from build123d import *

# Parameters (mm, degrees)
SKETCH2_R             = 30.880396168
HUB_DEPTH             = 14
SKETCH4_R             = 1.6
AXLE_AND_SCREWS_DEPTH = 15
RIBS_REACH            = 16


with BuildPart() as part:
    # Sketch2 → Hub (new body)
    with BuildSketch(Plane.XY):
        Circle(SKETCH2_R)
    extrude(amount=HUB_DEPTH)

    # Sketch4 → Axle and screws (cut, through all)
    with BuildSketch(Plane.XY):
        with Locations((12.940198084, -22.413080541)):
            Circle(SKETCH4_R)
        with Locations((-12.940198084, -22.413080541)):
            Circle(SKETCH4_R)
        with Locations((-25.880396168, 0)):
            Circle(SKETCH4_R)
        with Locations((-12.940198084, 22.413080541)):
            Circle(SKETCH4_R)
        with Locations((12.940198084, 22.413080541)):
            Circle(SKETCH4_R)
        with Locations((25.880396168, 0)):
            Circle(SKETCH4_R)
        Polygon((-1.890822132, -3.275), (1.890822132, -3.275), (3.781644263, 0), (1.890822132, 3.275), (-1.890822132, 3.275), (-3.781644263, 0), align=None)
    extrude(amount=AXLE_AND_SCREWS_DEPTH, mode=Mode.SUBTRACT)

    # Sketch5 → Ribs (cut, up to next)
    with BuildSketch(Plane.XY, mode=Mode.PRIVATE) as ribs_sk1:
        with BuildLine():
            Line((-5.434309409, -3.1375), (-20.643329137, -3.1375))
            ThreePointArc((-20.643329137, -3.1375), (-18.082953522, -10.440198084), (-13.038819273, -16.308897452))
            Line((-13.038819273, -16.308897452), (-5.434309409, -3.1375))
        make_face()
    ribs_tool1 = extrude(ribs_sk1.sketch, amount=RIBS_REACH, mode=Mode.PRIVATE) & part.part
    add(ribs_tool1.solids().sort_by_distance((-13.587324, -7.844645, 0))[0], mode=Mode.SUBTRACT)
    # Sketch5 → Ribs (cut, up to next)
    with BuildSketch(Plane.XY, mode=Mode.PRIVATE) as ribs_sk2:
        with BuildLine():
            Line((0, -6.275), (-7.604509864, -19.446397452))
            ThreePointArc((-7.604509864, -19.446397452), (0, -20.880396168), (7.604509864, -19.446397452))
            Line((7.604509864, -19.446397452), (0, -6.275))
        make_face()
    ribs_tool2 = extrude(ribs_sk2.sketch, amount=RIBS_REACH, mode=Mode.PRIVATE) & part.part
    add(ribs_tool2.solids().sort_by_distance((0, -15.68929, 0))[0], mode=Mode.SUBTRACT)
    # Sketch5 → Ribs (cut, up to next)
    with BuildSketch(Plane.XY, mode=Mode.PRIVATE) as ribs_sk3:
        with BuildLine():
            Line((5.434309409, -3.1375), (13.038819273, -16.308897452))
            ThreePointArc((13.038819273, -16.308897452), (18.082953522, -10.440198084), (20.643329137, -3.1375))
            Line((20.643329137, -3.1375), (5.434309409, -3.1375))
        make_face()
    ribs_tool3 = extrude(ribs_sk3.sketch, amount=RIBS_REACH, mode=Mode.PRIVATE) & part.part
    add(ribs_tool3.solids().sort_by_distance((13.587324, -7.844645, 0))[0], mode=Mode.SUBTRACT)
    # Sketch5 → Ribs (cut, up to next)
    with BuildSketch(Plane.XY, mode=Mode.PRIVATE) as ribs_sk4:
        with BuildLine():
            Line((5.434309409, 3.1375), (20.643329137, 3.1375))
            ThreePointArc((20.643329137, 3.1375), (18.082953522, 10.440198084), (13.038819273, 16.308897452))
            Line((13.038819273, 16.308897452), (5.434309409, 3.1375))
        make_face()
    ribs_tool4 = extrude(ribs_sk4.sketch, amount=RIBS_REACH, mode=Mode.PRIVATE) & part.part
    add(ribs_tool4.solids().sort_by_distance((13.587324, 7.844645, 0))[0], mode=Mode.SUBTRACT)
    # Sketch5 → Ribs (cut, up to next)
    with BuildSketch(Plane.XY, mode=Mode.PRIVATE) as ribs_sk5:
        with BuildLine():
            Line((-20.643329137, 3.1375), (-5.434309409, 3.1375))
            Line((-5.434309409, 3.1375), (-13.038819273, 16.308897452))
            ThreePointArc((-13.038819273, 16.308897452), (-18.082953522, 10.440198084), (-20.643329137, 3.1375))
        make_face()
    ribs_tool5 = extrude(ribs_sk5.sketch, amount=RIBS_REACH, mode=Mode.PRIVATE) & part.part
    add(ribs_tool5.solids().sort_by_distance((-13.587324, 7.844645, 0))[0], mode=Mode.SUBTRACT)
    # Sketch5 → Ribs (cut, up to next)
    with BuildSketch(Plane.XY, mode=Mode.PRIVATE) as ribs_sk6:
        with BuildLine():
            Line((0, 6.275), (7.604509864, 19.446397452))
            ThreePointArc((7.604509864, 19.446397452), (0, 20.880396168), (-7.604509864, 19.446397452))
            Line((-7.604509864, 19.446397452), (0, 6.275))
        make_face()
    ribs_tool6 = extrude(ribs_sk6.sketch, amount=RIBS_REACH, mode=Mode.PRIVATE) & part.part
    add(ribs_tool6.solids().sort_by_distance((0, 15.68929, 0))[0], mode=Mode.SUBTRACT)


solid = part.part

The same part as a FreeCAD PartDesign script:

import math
import FreeCAD as App
import Part
import Sketcher
Q = App.Units.Quantity

doc = App.newDocument("Part")
body = doc.addObject("PartDesign::Body", "Body")

sketch1 = body.newObject("Sketcher::SketchObject", "Sketch")
sketch1.AttachmentSupport = (doc.getObject("XY_Plane"), [""])
sketch1.MapMode = "FlatFace"
sketch1.addGeometry(Part.Circle(App.Vector(0, 0, 0), App.Vector(0, 0, 1), 30.880396), False)
sketch1.addConstraint(Sketcher.Constraint("Coincident", 0, 3, -1, 1))
sketch1.addConstraint(Sketcher.Constraint("Diameter", 0, Q("61.760792 mm")))
pad1 = body.newObject("PartDesign::Pad", "Pad")
pad1.Profile = sketch1
pad1.Length = 14

sketch2 = body.newObject("Sketcher::SketchObject", "Sketch001")
sketch2.AttachmentSupport = (doc.getObject("XY_Plane"), [""])
sketch2.MapMode = "FlatFace"
sketch2.addGeometry(Part.Circle(App.Vector(12.940198, -22.413081, 0), App.Vector(0, 0, 1), 1.6), False)
sketch2.addGeometry(Part.Circle(App.Vector(-12.940198, -22.413081, 0), App.Vector(0, 0, 1), 1.6), False)
sketch2.addGeometry(Part.Circle(App.Vector(-25.880396, 0, 0), App.Vector(0, 0, 1), 1.6), False)
sketch2.addGeometry(Part.Circle(App.Vector(-12.940198, 22.413081, 0), App.Vector(0, 0, 1), 1.6), False)
sketch2.addGeometry(Part.Circle(App.Vector(12.940198, 22.413081, 0), App.Vector(0, 0, 1), 1.6), False)
sketch2.addGeometry(Part.Circle(App.Vector(25.880396, 0, 0), App.Vector(0, 0, 1), 1.6), False)
sketch2.addGeometry(Part.LineSegment(App.Vector(-1.890822, -3.275, 0), App.Vector(1.890822, -3.275, 0)), False)
sketch2.addGeometry(Part.LineSegment(App.Vector(1.890822, -3.275, 0), App.Vector(3.781644, 0, 0)), False)
sketch2.addGeometry(Part.LineSegment(App.Vector(3.781644, 0, 0), App.Vector(1.890822, 3.275, 0)), False)
sketch2.addGeometry(Part.LineSegment(App.Vector(1.890822, 3.275, 0), App.Vector(-1.890822, 3.275, 0)), False)
sketch2.addGeometry(Part.LineSegment(App.Vector(-1.890822, 3.275, 0), App.Vector(-3.781644, 0, 0)), False)
sketch2.addGeometry(Part.LineSegment(App.Vector(-3.781644, 0, 0), App.Vector(-1.890822, -3.275, 0)), False)
sketch2.addConstraint(Sketcher.Constraint("Coincident", 6, 2, 7, 1))
sketch2.addConstraint(Sketcher.Constraint("Coincident", 7, 2, 8, 1))
sketch2.addConstraint(Sketcher.Constraint("Coincident", 8, 2, 9, 1))
sketch2.addConstraint(Sketcher.Constraint("Coincident", 9, 2, 10, 1))
sketch2.addConstraint(Sketcher.Constraint("Coincident", 10, 2, 11, 1))
sketch2.addConstraint(Sketcher.Constraint("Coincident", 11, 2, 6, 1))
sketch2.addConstraint(Sketcher.Constraint("Horizontal", 6))
sketch2.addConstraint(Sketcher.Constraint("Horizontal", 9))
sketch2.addConstraint(Sketcher.Constraint("Equal", 0, 1))
sketch2.addConstraint(Sketcher.Constraint("Equal", 1, 2))
sketch2.addConstraint(Sketcher.Constraint("Equal", 2, 3))
sketch2.addConstraint(Sketcher.Constraint("Equal", 3, 4))
sketch2.addConstraint(Sketcher.Constraint("Equal", 4, 5))
sketch2.addConstraint(Sketcher.Constraint("Symmetric", 0, 3, 3, 3, -1, 1))
sketch2.addConstraint(Sketcher.Constraint("Symmetric", 1, 3, 4, 3, -1, 1))
sketch2.addConstraint(Sketcher.Constraint("Symmetric", 2, 3, 5, 3, -1, 1))
sketch2.addConstraint(Sketcher.Constraint("Symmetric", 6, 2, 9, 2, -1, 1))
sketch2.addConstraint(Sketcher.Constraint("Symmetric", 7, 2, 10, 2, -1, 1))
sketch2.addConstraint(Sketcher.Constraint("Symmetric", 0, 3, 1, 3, -2))
sketch2.addConstraint(Sketcher.Constraint("PointOnObject", 2, 3, -1))
sketch2.addConstraint(Sketcher.Constraint("PointOnObject", 7, 2, -1))
sketch2.addConstraint(Sketcher.Constraint("Parallel", 8, 11))
sketch2.addConstraint(Sketcher.Constraint("Vertical", 6, 2, 8, 2))
sketch2.addConstraint(Sketcher.Constraint("Diameter", 0, Q("3.2 mm")))
sketch2.addConstraint(Sketcher.Constraint("Angle", 7, Q("60 deg")))
sketch2.addConstraint(Sketcher.Constraint("DistanceY", 6, 2, 8, 2, Q("6.55 mm")))
sketch2.addConstraint(Sketcher.Constraint("DistanceX", -1, 1, 0, 3, Q("12.940198 mm")))
sketch2.addConstraint(Sketcher.Constraint("DistanceX", 2, 3, 1, 3, Q("12.940198 mm")))
sketch2.addConstraint(Sketcher.Constraint("DistanceX", 6, 1, 6, 2, Q("3.781644 mm")))
sketch2.addConstraint(Sketcher.Constraint("DistanceY", 0, 3, -1, 1, Q("22.413081 mm")))
pocket1 = body.newObject("PartDesign::Pocket", "Pocket")
pocket1.Profile = sketch2
pocket1.Type = "ThroughAll"
pocket1.Reversed = True

sketch3 = body.newObject("Sketcher::SketchObject", "Sketch002")
sketch3.AttachmentSupport = (doc.getObject("XY_Plane"), [""])
sketch3.MapMode = "FlatFace"
sketch3.addGeometry(Part.LineSegment(App.Vector(-5.434309, -3.1375, 0), App.Vector(-20.643329, -3.1375, 0)), False)
sketch3.addGeometry(Part.ArcOfCircle(Part.Circle(App.Vector(0, 0, 0), App.Vector(0, 0, 1), 20.880396), math.radians(-171.357973), math.radians(-128.642027)), False)
sketch3.addGeometry(Part.LineSegment(App.Vector(-13.038819, -16.308897, 0), App.Vector(-5.434309, -3.1375, 0)), False)
sketch3.addConstraint(Sketcher.Constraint("Coincident", 0, 2, 1, 1))
sketch3.addConstraint(Sketcher.Constraint("Coincident", 1, 2, 2, 1))
sketch3.addConstraint(Sketcher.Constraint("Coincident", 2, 2, 0, 1))
sketch3.addConstraint(Sketcher.Constraint("Horizontal", 0))
sketch3.addConstraint(Sketcher.Constraint("Coincident", 1, 3, -1, 1))
sketch3.addConstraint(Sketcher.Constraint("Angle", 2, Q("60 deg")))
sketch3.addConstraint(Sketcher.Constraint("Radius", 1, Q("20.880396 mm")))
sketch3.addConstraint(Sketcher.Constraint("DistanceX", 0, 2, 0, 1, Q("15.20902 mm")))
sketch3.addConstraint(Sketcher.Constraint("DistanceY", 0, 2, -1, 1, Q("3.1375 mm")))
pocket2 = body.newObject("PartDesign::Pocket", "Pocket001")
pocket2.Profile = sketch3
pocket2.Type = "UpToFirst"
pocket2.Reversed = True

sketch4 = body.newObject("Sketcher::SketchObject", "Sketch003")
sketch4.AttachmentSupport = (doc.getObject("XY_Plane"), [""])
sketch4.MapMode = "FlatFace"
sketch4.addGeometry(Part.LineSegment(App.Vector(0, -6.275, 0), App.Vector(-7.60451, -19.446397, 0)), False)
sketch4.addGeometry(Part.ArcOfCircle(Part.Circle(App.Vector(0, 0, 0), App.Vector(0, 0, 1), 20.880396), math.radians(-111.357973), math.radians(-68.642027)), False)
sketch4.addGeometry(Part.LineSegment(App.Vector(7.60451, -19.446397, 0), App.Vector(0, -6.275, 0)), False)
sketch4.addConstraint(Sketcher.Constraint("Coincident", 0, 2, 1, 1))
sketch4.addConstraint(Sketcher.Constraint("Coincident", 1, 2, 2, 1))
sketch4.addConstraint(Sketcher.Constraint("Coincident", 2, 2, 0, 1))
sketch4.addConstraint(Sketcher.Constraint("Coincident", 1, 3, -1, 1))
sketch4.addConstraint(Sketcher.Constraint("PointOnObject", 2, 2, -2))
sketch4.addConstraint(Sketcher.Constraint("Horizontal", 0, 2, 1, 2))
sketch4.addConstraint(Sketcher.Constraint("Angle", 0, Q("-120 deg")))
sketch4.addConstraint(Sketcher.Constraint("DistanceY", 2, 2, -1, 1, Q("6.275 mm")))
sketch4.addConstraint(Sketcher.Constraint("Radius", 1, Q("20.880396 mm")))
pocket3 = body.newObject("PartDesign::Pocket", "Pocket002")
pocket3.Profile = sketch4
pocket3.Type = "UpToFirst"
pocket3.Reversed = True

sketch5 = body.newObject("Sketcher::SketchObject", "Sketch004")
sketch5.AttachmentSupport = (doc.getObject("XY_Plane"), [""])
sketch5.MapMode = "FlatFace"
sketch5.addGeometry(Part.LineSegment(App.Vector(5.434309, -3.1375, 0), App.Vector(13.038819, -16.308897, 0)), False)
sketch5.addGeometry(Part.ArcOfCircle(Part.Circle(App.Vector(0, 0, 0), App.Vector(0, 0, 1), 20.880396), math.radians(-51.357973), math.radians(-8.642027)), False)
sketch5.addGeometry(Part.LineSegment(App.Vector(20.643329, -3.1375, 0), App.Vector(5.434309, -3.1375, 0)), False)
sketch5.addConstraint(Sketcher.Constraint("Coincident", 0, 2, 1, 1))
sketch5.addConstraint(Sketcher.Constraint("Coincident", 1, 2, 2, 1))
sketch5.addConstraint(Sketcher.Constraint("Coincident", 2, 2, 0, 1))
sketch5.addConstraint(Sketcher.Constraint("Horizontal", 2))
sketch5.addConstraint(Sketcher.Constraint("Coincident", 1, 3, -1, 1))
sketch5.addConstraint(Sketcher.Constraint("Angle", 0, Q("-60 deg")))
sketch5.addConstraint(Sketcher.Constraint("Radius", 1, Q("20.880396 mm")))
sketch5.addConstraint(Sketcher.Constraint("DistanceX", 2, 2, 2, 1, Q("15.20902 mm")))
sketch5.addConstraint(Sketcher.Constraint("DistanceY", 1, 2, -1, 1, Q("3.1375 mm")))
pocket4 = body.newObject("PartDesign::Pocket", "Pocket003")
pocket4.Profile = sketch5
pocket4.Type = "UpToFirst"
pocket4.Reversed = True

sketch6 = body.newObject("Sketcher::SketchObject", "Sketch005")
sketch6.AttachmentSupport = (doc.getObject("XY_Plane"), [""])
sketch6.MapMode = "FlatFace"
sketch6.addGeometry(Part.LineSegment(App.Vector(5.434309, 3.1375, 0), App.Vector(20.643329, 3.1375, 0)), False)
sketch6.addGeometry(Part.ArcOfCircle(Part.Circle(App.Vector(0, 0, 0), App.Vector(0, 0, 1), 20.880396), math.radians(8.642027), math.radians(51.357973)), False)
sketch6.addGeometry(Part.LineSegment(App.Vector(13.038819, 16.308897, 0), App.Vector(5.434309, 3.1375, 0)), False)
sketch6.addConstraint(Sketcher.Constraint("Coincident", 0, 2, 1, 1))
sketch6.addConstraint(Sketcher.Constraint("Coincident", 1, 2, 2, 1))
sketch6.addConstraint(Sketcher.Constraint("Coincident", 2, 2, 0, 1))
sketch6.addConstraint(Sketcher.Constraint("Horizontal", 0))
sketch6.addConstraint(Sketcher.Constraint("Coincident", 1, 3, -1, 1))
sketch6.addConstraint(Sketcher.Constraint("Angle", 2, Q("-120 deg")))
sketch6.addConstraint(Sketcher.Constraint("Radius", 1, Q("20.880396 mm")))
sketch6.addConstraint(Sketcher.Constraint("DistanceX", 0, 1, 0, 2, Q("15.20902 mm")))
sketch6.addConstraint(Sketcher.Constraint("DistanceY", -1, 1, 0, 2, Q("3.1375 mm")))
pocket5 = body.newObject("PartDesign::Pocket", "Pocket004")
pocket5.Profile = sketch6
pocket5.Type = "UpToFirst"
pocket5.Reversed = True

sketch7 = body.newObject("Sketcher::SketchObject", "Sketch006")
sketch7.AttachmentSupport = (doc.getObject("XY_Plane"), [""])
sketch7.MapMode = "FlatFace"
sketch7.addGeometry(Part.LineSegment(App.Vector(-20.643329, 3.1375, 0), App.Vector(-5.434309, 3.1375, 0)), False)
sketch7.addGeometry(Part.LineSegment(App.Vector(-5.434309, 3.1375, 0), App.Vector(-13.038819, 16.308897, 0)), False)
sketch7.addGeometry(Part.ArcOfCircle(Part.Circle(App.Vector(0, 0, 0), App.Vector(0, 0, 1), 20.880396), math.radians(128.642027), math.radians(171.357973)), False)
sketch7.addConstraint(Sketcher.Constraint("Coincident", 0, 2, 1, 1))
sketch7.addConstraint(Sketcher.Constraint("Coincident", 1, 2, 2, 1))
sketch7.addConstraint(Sketcher.Constraint("Coincident", 2, 2, 0, 1))
sketch7.addConstraint(Sketcher.Constraint("Horizontal", 0))
sketch7.addConstraint(Sketcher.Constraint("Coincident", 2, 3, -1, 1))
sketch7.addConstraint(Sketcher.Constraint("Angle", 1, Q("120 deg")))
sketch7.addConstraint(Sketcher.Constraint("Radius", 2, Q("20.880396 mm")))
sketch7.addConstraint(Sketcher.Constraint("DistanceX", 0, 1, 0, 2, Q("15.20902 mm")))
sketch7.addConstraint(Sketcher.Constraint("DistanceY", -1, 1, 0, 2, Q("3.1375 mm")))
pocket6 = body.newObject("PartDesign::Pocket", "Pocket005")
pocket6.Profile = sketch7
pocket6.Type = "UpToFirst"
pocket6.Reversed = True

sketch8 = body.newObject("Sketcher::SketchObject", "Sketch007")
sketch8.AttachmentSupport = (doc.getObject("XY_Plane"), [""])
sketch8.MapMode = "FlatFace"
sketch8.addGeometry(Part.LineSegment(App.Vector(0, 6.275, 0), App.Vector(7.60451, 19.446397, 0)), False)
sketch8.addGeometry(Part.ArcOfCircle(Part.Circle(App.Vector(0, 0, 0), App.Vector(0, 0, 1), 20.880396), math.radians(68.642027), math.radians(111.357973)), False)
sketch8.addGeometry(Part.LineSegment(App.Vector(-7.60451, 19.446397, 0), App.Vector(0, 6.275, 0)), False)
sketch8.addConstraint(Sketcher.Constraint("Coincident", 0, 2, 1, 1))
sketch8.addConstraint(Sketcher.Constraint("Coincident", 1, 2, 2, 1))
sketch8.addConstraint(Sketcher.Constraint("Coincident", 2, 2, 0, 1))
sketch8.addConstraint(Sketcher.Constraint("Coincident", 1, 3, -1, 1))
sketch8.addConstraint(Sketcher.Constraint("PointOnObject", 2, 2, -2))
sketch8.addConstraint(Sketcher.Constraint("Horizontal", 0, 2, 1, 2))
sketch8.addConstraint(Sketcher.Constraint("Angle", 0, Q("60 deg")))
sketch8.addConstraint(Sketcher.Constraint("DistanceY", -1, 1, 2, 2, Q("6.275 mm")))
sketch8.addConstraint(Sketcher.Constraint("Radius", 1, Q("20.880396 mm")))
pocket7 = body.newObject("PartDesign::Pocket", "Pocket006")
pocket7.Profile = sketch8
pocket7.Type = "UpToFirst"
pocket7.Reversed = True

doc.recompute()
